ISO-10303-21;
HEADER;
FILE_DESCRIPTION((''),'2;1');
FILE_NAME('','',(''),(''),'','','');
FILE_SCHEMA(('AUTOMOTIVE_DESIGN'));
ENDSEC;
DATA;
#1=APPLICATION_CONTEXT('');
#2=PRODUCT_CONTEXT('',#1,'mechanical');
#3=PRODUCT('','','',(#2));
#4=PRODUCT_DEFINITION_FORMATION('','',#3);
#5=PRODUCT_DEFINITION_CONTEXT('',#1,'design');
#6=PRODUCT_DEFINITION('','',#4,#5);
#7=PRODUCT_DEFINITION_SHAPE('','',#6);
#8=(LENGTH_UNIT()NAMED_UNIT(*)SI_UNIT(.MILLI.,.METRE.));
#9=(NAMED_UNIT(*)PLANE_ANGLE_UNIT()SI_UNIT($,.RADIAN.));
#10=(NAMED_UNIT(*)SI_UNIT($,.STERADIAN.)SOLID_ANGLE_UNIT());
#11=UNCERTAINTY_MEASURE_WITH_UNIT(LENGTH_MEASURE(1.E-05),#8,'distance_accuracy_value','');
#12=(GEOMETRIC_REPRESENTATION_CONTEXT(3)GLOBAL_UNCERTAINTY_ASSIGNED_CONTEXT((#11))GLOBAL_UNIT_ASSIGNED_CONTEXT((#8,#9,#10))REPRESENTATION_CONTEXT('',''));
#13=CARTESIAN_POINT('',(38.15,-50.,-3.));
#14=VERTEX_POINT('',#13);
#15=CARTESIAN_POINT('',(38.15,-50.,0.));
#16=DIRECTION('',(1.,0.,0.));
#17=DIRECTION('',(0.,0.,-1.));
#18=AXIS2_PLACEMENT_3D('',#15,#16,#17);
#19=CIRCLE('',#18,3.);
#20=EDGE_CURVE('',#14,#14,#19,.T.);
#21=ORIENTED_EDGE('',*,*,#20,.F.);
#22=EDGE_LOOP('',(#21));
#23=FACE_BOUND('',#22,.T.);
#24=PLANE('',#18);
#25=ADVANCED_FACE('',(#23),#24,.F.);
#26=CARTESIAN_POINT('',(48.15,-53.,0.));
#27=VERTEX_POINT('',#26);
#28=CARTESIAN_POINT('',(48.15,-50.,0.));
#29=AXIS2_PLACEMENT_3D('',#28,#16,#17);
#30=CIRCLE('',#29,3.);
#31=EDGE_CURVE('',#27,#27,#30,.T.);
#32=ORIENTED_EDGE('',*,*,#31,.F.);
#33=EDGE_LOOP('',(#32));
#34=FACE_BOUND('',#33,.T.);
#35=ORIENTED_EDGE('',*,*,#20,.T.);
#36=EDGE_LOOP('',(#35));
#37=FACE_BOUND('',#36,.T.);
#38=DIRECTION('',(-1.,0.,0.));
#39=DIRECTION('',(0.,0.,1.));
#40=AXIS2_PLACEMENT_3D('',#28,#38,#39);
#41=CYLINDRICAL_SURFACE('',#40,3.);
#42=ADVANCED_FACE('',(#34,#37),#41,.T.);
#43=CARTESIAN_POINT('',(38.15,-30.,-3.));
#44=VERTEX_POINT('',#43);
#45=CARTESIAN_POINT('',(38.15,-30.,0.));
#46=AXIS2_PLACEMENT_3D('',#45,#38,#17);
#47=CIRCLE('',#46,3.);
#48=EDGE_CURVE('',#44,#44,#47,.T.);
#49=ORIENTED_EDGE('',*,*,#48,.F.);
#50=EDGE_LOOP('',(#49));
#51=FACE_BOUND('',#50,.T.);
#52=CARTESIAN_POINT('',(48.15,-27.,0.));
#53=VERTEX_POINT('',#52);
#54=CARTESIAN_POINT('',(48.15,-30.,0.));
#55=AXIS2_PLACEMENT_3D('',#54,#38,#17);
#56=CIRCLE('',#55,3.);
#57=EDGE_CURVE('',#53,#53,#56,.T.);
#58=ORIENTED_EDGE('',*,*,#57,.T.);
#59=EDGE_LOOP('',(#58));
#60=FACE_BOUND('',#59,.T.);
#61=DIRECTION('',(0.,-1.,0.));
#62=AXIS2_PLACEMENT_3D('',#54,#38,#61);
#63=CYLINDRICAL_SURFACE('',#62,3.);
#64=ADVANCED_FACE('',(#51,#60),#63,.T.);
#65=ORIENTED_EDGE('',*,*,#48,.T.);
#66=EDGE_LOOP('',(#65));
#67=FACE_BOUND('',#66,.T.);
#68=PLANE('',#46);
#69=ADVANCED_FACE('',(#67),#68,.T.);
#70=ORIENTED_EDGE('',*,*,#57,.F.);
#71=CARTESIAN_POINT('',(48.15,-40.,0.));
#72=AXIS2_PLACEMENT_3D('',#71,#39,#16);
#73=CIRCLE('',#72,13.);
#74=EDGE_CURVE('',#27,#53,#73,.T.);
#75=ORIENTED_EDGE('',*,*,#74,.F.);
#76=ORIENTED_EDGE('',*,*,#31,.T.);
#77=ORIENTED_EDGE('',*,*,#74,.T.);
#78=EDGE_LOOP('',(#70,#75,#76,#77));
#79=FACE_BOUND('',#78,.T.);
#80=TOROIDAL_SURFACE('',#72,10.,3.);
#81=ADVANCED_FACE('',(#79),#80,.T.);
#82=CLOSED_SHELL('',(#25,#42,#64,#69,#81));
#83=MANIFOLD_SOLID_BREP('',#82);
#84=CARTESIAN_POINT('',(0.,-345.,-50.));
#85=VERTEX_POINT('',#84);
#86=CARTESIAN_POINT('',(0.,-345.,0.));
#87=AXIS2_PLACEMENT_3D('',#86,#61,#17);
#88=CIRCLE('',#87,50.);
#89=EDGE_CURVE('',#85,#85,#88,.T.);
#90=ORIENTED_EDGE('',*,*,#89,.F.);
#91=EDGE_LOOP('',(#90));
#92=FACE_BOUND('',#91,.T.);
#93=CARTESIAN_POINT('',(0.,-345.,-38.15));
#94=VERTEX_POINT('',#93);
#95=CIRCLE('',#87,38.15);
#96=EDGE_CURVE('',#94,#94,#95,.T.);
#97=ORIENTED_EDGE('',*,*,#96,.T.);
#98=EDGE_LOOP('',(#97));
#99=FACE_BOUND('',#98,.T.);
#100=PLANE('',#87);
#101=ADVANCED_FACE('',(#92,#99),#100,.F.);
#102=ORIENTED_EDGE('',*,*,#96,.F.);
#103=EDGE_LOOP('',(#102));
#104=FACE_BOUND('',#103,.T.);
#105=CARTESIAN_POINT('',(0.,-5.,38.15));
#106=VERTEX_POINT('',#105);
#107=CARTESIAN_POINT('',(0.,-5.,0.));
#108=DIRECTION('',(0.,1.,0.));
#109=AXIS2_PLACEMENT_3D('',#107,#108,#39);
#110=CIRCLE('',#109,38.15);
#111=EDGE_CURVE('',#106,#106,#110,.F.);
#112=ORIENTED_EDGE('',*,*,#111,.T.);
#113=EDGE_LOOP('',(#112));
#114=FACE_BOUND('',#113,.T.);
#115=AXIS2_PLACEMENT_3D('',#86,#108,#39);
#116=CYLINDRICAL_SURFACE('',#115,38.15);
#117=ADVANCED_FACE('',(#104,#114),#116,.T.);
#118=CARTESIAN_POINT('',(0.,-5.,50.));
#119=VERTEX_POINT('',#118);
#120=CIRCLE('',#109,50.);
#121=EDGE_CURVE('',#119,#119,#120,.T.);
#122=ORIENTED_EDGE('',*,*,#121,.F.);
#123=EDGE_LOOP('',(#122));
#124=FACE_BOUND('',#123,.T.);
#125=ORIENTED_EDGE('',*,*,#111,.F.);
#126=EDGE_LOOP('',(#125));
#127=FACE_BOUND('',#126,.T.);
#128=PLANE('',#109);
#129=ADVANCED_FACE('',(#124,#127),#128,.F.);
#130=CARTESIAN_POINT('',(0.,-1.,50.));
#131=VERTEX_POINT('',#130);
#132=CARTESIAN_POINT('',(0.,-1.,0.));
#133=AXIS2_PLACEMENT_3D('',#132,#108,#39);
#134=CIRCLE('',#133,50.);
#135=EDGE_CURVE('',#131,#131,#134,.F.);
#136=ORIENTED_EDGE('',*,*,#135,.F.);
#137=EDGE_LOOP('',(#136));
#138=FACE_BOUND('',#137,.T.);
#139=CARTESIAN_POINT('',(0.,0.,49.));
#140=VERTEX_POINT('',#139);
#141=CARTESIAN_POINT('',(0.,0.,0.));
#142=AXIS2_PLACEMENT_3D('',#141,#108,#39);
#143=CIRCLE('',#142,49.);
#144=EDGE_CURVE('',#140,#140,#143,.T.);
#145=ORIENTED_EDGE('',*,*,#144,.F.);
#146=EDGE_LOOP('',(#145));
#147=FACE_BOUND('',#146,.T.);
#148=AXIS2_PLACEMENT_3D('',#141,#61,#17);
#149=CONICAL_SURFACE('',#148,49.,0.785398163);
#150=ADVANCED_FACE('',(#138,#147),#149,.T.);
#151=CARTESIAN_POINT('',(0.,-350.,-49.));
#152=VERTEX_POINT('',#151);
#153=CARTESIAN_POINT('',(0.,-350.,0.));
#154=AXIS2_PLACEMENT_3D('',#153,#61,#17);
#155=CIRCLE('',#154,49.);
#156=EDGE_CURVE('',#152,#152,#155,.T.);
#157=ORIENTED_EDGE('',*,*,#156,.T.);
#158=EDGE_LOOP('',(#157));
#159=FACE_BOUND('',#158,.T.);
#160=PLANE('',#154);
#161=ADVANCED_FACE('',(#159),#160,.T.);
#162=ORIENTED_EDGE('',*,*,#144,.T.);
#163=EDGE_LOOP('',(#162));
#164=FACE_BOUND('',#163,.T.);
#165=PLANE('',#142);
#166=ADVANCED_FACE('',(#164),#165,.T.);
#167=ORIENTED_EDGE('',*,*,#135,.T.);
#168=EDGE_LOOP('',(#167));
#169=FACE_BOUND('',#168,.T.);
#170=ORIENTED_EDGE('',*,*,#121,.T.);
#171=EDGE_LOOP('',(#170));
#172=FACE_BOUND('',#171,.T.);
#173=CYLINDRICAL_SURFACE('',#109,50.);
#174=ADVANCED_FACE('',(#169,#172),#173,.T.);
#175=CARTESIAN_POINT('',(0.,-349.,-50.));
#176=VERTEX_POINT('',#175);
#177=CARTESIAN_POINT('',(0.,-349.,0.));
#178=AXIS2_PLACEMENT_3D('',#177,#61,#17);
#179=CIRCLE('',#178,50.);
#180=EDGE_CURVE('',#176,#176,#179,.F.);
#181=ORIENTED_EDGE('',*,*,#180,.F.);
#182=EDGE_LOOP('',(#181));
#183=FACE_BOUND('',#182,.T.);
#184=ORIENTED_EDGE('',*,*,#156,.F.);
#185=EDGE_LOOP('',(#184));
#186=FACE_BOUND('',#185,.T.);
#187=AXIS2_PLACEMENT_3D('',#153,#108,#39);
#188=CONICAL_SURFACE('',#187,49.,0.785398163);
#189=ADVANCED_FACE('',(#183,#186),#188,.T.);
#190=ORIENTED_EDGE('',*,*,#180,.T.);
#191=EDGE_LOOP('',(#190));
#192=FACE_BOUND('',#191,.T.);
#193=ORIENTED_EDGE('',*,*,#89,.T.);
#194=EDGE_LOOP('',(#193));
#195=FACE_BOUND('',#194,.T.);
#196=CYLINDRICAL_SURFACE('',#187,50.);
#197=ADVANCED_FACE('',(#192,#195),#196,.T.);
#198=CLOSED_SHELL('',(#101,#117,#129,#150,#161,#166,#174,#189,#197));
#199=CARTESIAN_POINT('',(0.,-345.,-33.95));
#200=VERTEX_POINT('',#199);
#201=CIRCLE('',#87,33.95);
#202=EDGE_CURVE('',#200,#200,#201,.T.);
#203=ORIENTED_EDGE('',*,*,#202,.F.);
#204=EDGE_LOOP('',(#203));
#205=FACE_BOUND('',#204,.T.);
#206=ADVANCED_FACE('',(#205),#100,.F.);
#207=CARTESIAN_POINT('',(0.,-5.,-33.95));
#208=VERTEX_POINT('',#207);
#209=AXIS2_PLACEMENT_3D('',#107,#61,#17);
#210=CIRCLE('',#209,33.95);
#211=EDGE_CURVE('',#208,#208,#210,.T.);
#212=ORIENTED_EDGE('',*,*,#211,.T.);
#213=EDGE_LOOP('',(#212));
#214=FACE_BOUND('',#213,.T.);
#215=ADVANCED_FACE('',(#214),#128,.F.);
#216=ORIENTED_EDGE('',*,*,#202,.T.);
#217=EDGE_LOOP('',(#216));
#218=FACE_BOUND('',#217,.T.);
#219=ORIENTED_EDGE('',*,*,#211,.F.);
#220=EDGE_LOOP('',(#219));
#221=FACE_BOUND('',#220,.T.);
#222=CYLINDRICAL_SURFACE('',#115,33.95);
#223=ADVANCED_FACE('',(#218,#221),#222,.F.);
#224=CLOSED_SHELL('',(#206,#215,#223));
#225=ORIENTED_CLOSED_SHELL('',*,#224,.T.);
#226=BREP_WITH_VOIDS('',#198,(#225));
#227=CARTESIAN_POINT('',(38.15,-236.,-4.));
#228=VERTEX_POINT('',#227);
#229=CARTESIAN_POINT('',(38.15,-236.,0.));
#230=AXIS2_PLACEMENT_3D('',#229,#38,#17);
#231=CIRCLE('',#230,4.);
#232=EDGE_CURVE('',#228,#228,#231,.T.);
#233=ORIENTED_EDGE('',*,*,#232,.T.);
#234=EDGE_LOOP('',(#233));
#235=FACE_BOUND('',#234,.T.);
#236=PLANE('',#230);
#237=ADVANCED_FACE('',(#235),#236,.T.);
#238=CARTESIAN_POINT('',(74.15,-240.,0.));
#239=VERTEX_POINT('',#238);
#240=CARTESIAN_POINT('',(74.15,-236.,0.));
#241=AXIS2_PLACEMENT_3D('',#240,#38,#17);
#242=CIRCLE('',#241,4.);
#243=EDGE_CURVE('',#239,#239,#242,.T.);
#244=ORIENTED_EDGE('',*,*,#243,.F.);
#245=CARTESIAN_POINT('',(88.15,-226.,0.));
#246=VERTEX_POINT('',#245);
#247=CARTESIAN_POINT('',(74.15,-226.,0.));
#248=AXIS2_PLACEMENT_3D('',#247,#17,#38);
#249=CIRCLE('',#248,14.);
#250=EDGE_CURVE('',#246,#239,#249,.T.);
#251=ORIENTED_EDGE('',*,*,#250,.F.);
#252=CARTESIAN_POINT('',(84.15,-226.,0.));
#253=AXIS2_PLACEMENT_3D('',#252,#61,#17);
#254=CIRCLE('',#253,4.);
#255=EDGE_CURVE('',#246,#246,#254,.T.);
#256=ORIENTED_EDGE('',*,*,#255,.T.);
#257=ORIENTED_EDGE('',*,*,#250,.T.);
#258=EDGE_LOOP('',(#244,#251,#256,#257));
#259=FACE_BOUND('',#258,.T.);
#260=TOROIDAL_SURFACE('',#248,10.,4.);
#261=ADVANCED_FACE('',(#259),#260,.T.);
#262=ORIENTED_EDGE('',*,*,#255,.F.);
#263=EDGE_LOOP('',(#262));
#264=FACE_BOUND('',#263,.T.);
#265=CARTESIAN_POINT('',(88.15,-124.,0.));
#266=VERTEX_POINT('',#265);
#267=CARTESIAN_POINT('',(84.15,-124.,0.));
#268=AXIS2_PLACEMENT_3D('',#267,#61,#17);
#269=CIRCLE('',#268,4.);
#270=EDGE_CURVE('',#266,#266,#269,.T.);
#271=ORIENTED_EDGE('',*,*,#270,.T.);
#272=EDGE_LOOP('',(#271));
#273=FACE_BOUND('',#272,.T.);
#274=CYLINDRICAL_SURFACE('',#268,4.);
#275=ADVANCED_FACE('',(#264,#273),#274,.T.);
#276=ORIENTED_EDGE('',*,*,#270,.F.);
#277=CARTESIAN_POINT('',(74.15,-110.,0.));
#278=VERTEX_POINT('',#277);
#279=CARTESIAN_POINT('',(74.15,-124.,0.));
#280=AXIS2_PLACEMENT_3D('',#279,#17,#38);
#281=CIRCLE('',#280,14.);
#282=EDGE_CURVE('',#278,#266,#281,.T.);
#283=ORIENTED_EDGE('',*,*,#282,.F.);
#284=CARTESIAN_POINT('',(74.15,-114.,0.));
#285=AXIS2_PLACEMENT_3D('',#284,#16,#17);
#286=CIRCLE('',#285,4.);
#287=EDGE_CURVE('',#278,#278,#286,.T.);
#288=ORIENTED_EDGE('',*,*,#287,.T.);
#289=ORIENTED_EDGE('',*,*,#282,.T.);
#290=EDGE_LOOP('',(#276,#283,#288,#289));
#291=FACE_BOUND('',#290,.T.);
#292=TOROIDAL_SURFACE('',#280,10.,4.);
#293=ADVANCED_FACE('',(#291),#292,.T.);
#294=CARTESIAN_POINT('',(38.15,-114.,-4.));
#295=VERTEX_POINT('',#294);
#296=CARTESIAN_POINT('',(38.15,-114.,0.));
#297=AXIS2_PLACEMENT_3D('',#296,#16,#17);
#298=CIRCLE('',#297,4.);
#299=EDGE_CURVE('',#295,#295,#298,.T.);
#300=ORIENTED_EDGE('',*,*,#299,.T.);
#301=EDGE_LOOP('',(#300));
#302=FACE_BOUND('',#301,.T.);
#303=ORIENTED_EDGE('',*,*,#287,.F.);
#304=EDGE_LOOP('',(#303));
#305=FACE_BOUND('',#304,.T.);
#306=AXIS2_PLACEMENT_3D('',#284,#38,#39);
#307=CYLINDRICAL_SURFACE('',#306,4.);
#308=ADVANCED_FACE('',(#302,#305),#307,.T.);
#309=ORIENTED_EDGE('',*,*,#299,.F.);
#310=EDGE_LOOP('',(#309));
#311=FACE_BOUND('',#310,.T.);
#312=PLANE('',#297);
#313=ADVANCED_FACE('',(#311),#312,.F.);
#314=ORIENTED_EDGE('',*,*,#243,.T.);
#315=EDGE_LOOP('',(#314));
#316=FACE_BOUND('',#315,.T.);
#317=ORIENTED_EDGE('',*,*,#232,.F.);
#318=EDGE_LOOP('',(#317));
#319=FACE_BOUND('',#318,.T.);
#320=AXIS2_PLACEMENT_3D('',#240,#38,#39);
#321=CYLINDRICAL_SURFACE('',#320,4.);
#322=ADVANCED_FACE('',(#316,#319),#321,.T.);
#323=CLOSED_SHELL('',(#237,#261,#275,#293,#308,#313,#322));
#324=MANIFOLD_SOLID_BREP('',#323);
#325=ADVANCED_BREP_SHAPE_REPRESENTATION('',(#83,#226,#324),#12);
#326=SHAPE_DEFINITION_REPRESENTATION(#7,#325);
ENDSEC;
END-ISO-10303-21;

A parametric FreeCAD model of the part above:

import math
import FreeCAD as App
import Part
import Sketcher
from FreeCAD import Vector
Q = App.Units.Quantity


def edges_at(feature, points):
    """Names of the edges that pass closest to the given points."""
    edges = feature.Shape.Edges
    near = lambda p: min(range(len(edges)), key=lambda i: edges[i].distToShape(Part.Vertex(*p))[0])
    return sorted({f"Edge{near(p) + 1}" for p in points})

doc = App.newDocument("Part")
body = doc.addObject("PartDesign::Body", "Body")

# Sketch on XZ plane
sketch1 = doc.addObject("Sketcher::SketchObject", "Sketch")
body.addObject(sketch1)
sketch1.AttachmentSupport = (doc.XZ_Plane, [""])
sketch1.MapMode = "FlatFace"
sketch1.addGeometry(Part.Circle(Vector(0, 0, 0), Vector(0, 0, 1), 50), False)
sketch1.addConstraint(Sketcher.Constraint("Coincident", 0, 3, -1, 1))
sketch1.addConstraint(Sketcher.Constraint("Diameter", 0, Q("100 mm")))
pad1 = doc.addObject("PartDesign::Pad", "Pad")
body.addObject(pad1)
pad1.Profile = sketch1
pad1.Length = 5

# Sketch on XZ plane
sketch2 = doc.addObject("Sketcher::SketchObject", "Sketch001")
body.addObject(sketch2)
sketch2.AttachmentSupport = (doc.XZ_Plane, [""])
sketch2.MapMode = "FlatFace"
sketch2.AttachmentOffset = App.Placement(Vector(0, 0, 5), App.Rotation())
sketch2.addGeometry(Part.Circle(Vector(0, 0, 0), Vector(0, 0, 1), 38.15), False)
sketch2.addGeometry(Part.Circle(Vector(0, 0, 0), Vector(0, 0, 1), 33.95), False)
sketch2.addConstraint(Sketcher.Constraint("Coincident", 0, 3, -1, 1))
sketch2.addConstraint(Sketcher.Constraint("Coincident", 1, 3, -1, 1))
sketch2.addConstraint(Sketcher.Constraint("Diameter", 0, Q("76.3 mm")))
sketch2.addConstraint(Sketcher.Constraint("Diameter", 1, Q("67.9 mm")))
pad2 = doc.addObject("PartDesign::Pad", "Pad001")
body.addObject(pad2)
pad2.Profile = sketch2
pad2.Length = 340

# Sketch on XZ plane
sketch3 = doc.addObject("Sketcher::SketchObject", "Sketch002")
body.addObject(sketch3)
sketch3.AttachmentSupport = (doc.XZ_Plane, [""])
sketch3.MapMode = "FlatFace"
sketch3.AttachmentOffset = App.Placement(Vector(0, 0, 345), App.Rotation())
sketch3.addGeometry(Part.Circle(Vector(0, 0, 0), Vector(0, 0, 1), 50), False)
sketch3.addConstraint(Sketcher.Constraint("Coincident", 0, 3, -1, 1))
sketch3.addConstraint(Sketcher.Constraint("Diameter", 0, Q("100 mm")))
pad3 = doc.addObject("PartDesign::Pad", "Pad002")
body.addObject(pad3)
pad3.Profile = sketch3
pad3.Length = 5
doc.recompute()

chamfer = doc.addObject("PartDesign::Chamfer", "Chamfer")
body.addObject(chamfer)
chamfer.Base = (pad3, edges_at(pad3, [(0, -350, -50), (0, 0, -50)]))
chamfer.Size = 1
body2 = doc.addObject("PartDesign::Body", "Body001")

# Sketch on YZ plane
sketch4 = doc.addObject("Sketcher::SketchObject", "Sketch003")
body2.addObject(sketch4)
sketch4.AttachmentSupport = (doc.getObject("YZ_Plane001"), [""])
sketch4.MapMode = "FlatFace"
sketch4.AttachmentOffset = App.Placement(Vector(0, 0, 38.15), App.Rotation())
sketch4.addGeometry(Part.Circle(Vector(-114, 0, 0), Vector(0, 0, 1), 4), False)
sketch4.addConstraint(Sketcher.Constraint("PointOnObject", 0, 3, -1))
sketch4.addConstraint(Sketcher.Constraint("Diameter", 0, Q("8 mm")))
sketch4.addConstraint(Sketcher.Constraint("DistanceX", 0, 3, -1, 1, Q("114 mm")))

# Sketch on XY plane
sketch5 = doc.addObject("Sketcher::SketchObject", "Sketch004")
body2.addObject(sketch5)
sketch5.AttachmentSupport = (doc.getObject("XY_Plane001"), [""])
sketch5.MapMode = "FlatFace"
sketch5.addGeometry(Part.LineSegment(Vector(38.15, -114, 0), Vector(74.15, -114, 0)), False)
sketch5.addGeometry(Part.ArcOfCircle(Part.Circle(Vector(74.15, -124, 0), Vector(0, 0, 1), 10), math.radians(0), math.radians(90)), False)
sketch5.addGeometry(Part.LineSegment(Vector(84.15, -124, 0), Vector(84.15, -226, 0)), False)
sketch5.addGeometry(Part.ArcOfCircle(Part.Circle(Vector(74.15, -226, 0), Vector(0, 0, 1), 10), math.radians(-90), math.radians(0)), False)
sketch5.addGeometry(Part.LineSegment(Vector(74.15, -236, 0), Vector(38.15, -236, 0)), False)
sketch5.addConstraint(Sketcher.Constraint("Tangent", 0, 2, 1, 2))
sketch5.addConstraint(Sketcher.Constraint("Tangent", 1, 1, 2, 1))
sketch5.addConstraint(Sketcher.Constraint("Tangent", 2, 2, 3, 2))
sketch5.addConstraint(Sketcher.Constraint("Tangent", 3, 1, 4, 1))
sketch5.addConstraint(Sketcher.Constraint("Horizontal", 0))
sketch5.addConstraint(Sketcher.Constraint("Vertical", 2))
sketch5.addConstraint(Sketcher.Constraint("Horizontal", 4))
sketch5.addConstraint(Sketcher.Constraint("Equal", 1, 3))
sketch5.addConstraint(Sketcher.Constraint("Vertical", 0, 1, 4, 2))
sketch5.addConstraint(Sketcher.Constraint("Radius", 1, Q("10 mm")))
sketch5.addConstraint(Sketcher.Constraint("DistanceX", 0, 1, 0, 2, Q("36 mm")))
sketch5.addConstraint(Sketcher.Constraint("DistanceY", 2, 2, 2, 1, Q("102 mm")))
sketch5.addConstraint(Sketcher.Constraint("DistanceY", 1, 3, -1, 1, Q("124 mm")))
sketch5.addConstraint(Sketcher.Constraint("DistanceX", -1, 1, 1, 3, Q("74.15 mm")))
doc.recompute()

additivepipe = doc.addObject("PartDesign::AdditivePipe", "AdditivePipe")
body2.addObject(additivepipe)
additivepipe.Profile = sketch4
additivepipe.Spine = (sketch5, ["Edge1", "Edge2", "Edge3", "Edge4", "Edge5"])
body3 = doc.addObject("PartDesign::Body", "Body002")

# Sketch on YZ plane
sketch6 = doc.addObject("Sketcher::SketchObject", "Sketch005")
body3.addObject(sketch6)
sketch6.AttachmentSupport = (doc.getObject("YZ_Plane002"), [""])
sketch6.MapMode = "FlatFace"
sketch6.AttachmentOffset = App.Placement(Vector(0, 0, 38.15), App.Rotation())
sketch6.addGeometry(Part.Circle(Vector(-50, 0, 0), Vector(0, 0, 1), 3), False)
sketch6.addConstraint(Sketcher.Constraint("PointOnObject", 0, 3, -1))
sketch6.addConstraint(Sketcher.Constraint("Diameter", 0, Q("6 mm")))
sketch6.addConstraint(Sketcher.Constraint("DistanceX", 0, 3, -1, 1, Q("50 mm")))

# Sketch on XY plane
sketch7 = doc.addObject("Sketcher::SketchObject", "Sketch006")
body3.addObject(sketch7)
sketch7.AttachmentSupport = (doc.getObject("XY_Plane002"), [""])
sketch7.MapMode = "FlatFace"
sketch7.addGeometry(Part.LineSegment(Vector(38.15, -50, 0), Vector(48.15, -50, 0)), False)
sketch7.addGeometry(Part.ArcOfCircle(Part.Circle(Vector(48.15, -40, 0), Vector(0, 0, 1), 10), math.radians(-90), math.radians(90)), False)
sketch7.addGeometry(Part.LineSegment(Vector(48.15, -30, 0), Vector(38.15, -30, 0)), False)
sketch7.addConstraint(Sketcher.Constraint("Tangent", 0, 2, 1, 1))
sketch7.addConstraint(Sketcher.Constraint("Tangent", 1, 2, 2, 1))
sketch7.addConstraint(Sketcher.Constraint("Horizontal", 0))
sketch7.addConstraint(Sketcher.Constraint("Horizontal", 2))
sketch7.addConstraint(Sketcher.Constraint("Vertical", 0, 1, 2, 2))
sketch7.addConstraint(Sketcher.Constraint("Radius", 1, Q("10 mm")))
sketch7.addConstraint(Sketcher.Constraint("DistanceX", 0, 1, 0, 2, Q("10 mm")))
sketch7.addConstraint(Sketcher.Constraint("DistanceY", 1, 3, -1, 1, Q("40 mm")))
sketch7.addConstraint(Sketcher.Constraint("DistanceX", -1, 1, 1, 3, Q("48.15 mm")))
doc.recompute()

additivepipe2 = doc.addObject("PartDesign::AdditivePipe", "AdditivePipe001")
body3.addObject(additivepipe2)
additivepipe2.Profile = sketch6
additivepipe2.Spine = (sketch7, ["Edge1", "Edge2", "Edge3"])

doc.recompute()
